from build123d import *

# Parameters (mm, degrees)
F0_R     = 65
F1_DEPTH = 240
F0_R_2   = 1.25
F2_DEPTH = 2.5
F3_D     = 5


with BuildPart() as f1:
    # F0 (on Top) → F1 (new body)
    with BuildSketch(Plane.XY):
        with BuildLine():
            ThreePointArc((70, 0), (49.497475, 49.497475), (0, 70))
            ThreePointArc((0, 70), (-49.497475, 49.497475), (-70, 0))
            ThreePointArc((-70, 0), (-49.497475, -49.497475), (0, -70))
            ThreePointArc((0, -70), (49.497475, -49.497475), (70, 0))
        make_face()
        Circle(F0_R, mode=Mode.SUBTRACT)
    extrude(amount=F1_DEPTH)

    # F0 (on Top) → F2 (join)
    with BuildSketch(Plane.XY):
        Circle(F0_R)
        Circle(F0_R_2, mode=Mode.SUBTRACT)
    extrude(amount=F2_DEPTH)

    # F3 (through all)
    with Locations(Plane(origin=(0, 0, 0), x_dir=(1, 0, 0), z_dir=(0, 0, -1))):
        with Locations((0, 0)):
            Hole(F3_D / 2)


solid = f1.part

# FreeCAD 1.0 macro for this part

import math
import FreeCAD as App
import Part
import Sketcher
Q = App.Units.Quantity

doc = App.newDocument("Part")
body = doc.addObject("PartDesign::Body", "Body")

# Sketch on XY plane
sketch1 = body.newObject("Sketcher::SketchObject", "Sketch")
sketch1.AttachmentSupport = (doc.getObject("XY_Plane"), [""])
sketch1.MapMode = "FlatFace"
sketch1.addGeometry(Part.ArcOfCircle(Part.Circle(App.Vector(0.000001, 0.000001, 0), App.Vector(0, 0, 1), 69.999999), math.radians(-0.000001), math.radians(90.000001)), False)
sketch1.addGeometry(Part.ArcOfCircle(Part.Circle(App.Vector(-0.000001, 0.000001, 0), App.Vector(0, 0, 1), 69.999999), math.radians(89.999999), math.radians(180.000001)), False)
sketch1.addGeometry(Part.ArcOfCircle(Part.Circle(App.Vector(-0.000001, -0.000001, 0), App.Vector(0, 0, 1), 69.999999), math.radians(179.999999), math.radians(270.000001)), False)
sketch1.addGeometry(Part.ArcOfCircle(Part.Circle(App.Vector(0.000001, -0.000001, 0), App.Vector(0, 0, 1), 69.999999), math.radians(-90.000001), math.radians(0.000001)), False)
sketch1.addGeometry(Part.Circle(App.Vector(0, 0, 0), App.Vector(0, 0, 1), 65), False)
sketch1.addConstraint(Sketcher.Constraint("Tangent", 0, 2, 1, 1))
sketch1.addConstraint(Sketcher.Constraint("Tangent", 1, 2, 2, 1))
sketch1.addConstraint(Sketcher.Constraint("Tangent", 2, 2, 3, 1))
sketch1.addConstraint(Sketcher.Constraint("Tangent", 3, 2, 0, 1))
sketch1.addConstraint(Sketcher.Constraint("Coincident", 0, 3, -1, 1))
sketch1.addConstraint(Sketcher.Constraint("Coincident", 4, 3, -1, 1))
sketch1.addConstraint(Sketcher.Constraint("Equal", 0, 1))
sketch1.addConstraint(Sketcher.Constraint("PointOnObject", 0, 2, -2))
sketch1.addConstraint(Sketcher.Constraint("PointOnObject", 1, 2, -1))
sketch1.addConstraint(Sketcher.Constraint("PointOnObject", 2, 2, -2))
sketch1.addConstraint(Sketcher.Constraint("PointOnObject", 3, 2, -1))
sketch1.addConstraint(Sketcher.Constraint("Diameter", 4, Q("130 mm")))
sketch1.addConstraint(Sketcher.Constraint("Radius", 0, Q("69.999999 mm")))
pad1 = body.newObject("PartDesign::Pad", "Pad")
pad1.Profile = sketch1
pad1.Length = 240

# Sketch on XY plane
sketch2 = body.newObject("Sketcher::SketchObject", "Sketch001")
sketch2.AttachmentSupport = (doc.getObject("XY_Plane"), [""])
sketch2.MapMode = "FlatFace"
sketch2.addGeometry(Part.Circle(App.Vector(0, 0, 0), App.Vector(0, 0, 1), 65), False)
sketch2.addGeometry(Part.Circle(App.Vector(0, 0, 0), App.Vector(0, 0, 1), 1.25), False)
sketch2.addConstraint(Sketcher.Constraint("Coincident", 0, 3, -1, 1))
sketch2.addConstraint(Sketcher.Constraint("Coincident", 1, 3, -1, 1))
sketch2.addConstraint(Sketcher.Constraint("Diameter", 0, Q("130 mm")))
sketch2.addConstraint(Sketcher.Constraint("Diameter", 1, Q("2.5 mm")))
pad2 = body.newObject("PartDesign::Pad", "Pad001")
pad2.Profile = sketch2
pad2.Length = 2.5

# Sketch on XY plane
sketch3 = body.newObject("Sketcher::SketchObject", "Sketch002")
sketch3.AttachmentSupport = (doc.getObject("XY_Plane"), [""])
sketch3.MapMode = "FlatFace"
sketch3.addGeometry(Part.Circle(App.Vector(0, 0, 0), App.Vector(0, 0, 1), 2.5), False)
sketch3.addConstraint(Sketcher.Constraint("Coincident", 0, 3, -1, 1))
sketch3.addConstraint(Sketcher.Constraint("Diameter", 0, Q("5 mm")))
doc.recompute()
hole = body.newObject("PartDesign::Hole", "Hole")
hole.Profile = sketch3
hole.ThreadType = "None"
hole.Diameter = 5
hole.DepthType = "ThroughAll"
hole.Reversed = True

doc.recompute()
